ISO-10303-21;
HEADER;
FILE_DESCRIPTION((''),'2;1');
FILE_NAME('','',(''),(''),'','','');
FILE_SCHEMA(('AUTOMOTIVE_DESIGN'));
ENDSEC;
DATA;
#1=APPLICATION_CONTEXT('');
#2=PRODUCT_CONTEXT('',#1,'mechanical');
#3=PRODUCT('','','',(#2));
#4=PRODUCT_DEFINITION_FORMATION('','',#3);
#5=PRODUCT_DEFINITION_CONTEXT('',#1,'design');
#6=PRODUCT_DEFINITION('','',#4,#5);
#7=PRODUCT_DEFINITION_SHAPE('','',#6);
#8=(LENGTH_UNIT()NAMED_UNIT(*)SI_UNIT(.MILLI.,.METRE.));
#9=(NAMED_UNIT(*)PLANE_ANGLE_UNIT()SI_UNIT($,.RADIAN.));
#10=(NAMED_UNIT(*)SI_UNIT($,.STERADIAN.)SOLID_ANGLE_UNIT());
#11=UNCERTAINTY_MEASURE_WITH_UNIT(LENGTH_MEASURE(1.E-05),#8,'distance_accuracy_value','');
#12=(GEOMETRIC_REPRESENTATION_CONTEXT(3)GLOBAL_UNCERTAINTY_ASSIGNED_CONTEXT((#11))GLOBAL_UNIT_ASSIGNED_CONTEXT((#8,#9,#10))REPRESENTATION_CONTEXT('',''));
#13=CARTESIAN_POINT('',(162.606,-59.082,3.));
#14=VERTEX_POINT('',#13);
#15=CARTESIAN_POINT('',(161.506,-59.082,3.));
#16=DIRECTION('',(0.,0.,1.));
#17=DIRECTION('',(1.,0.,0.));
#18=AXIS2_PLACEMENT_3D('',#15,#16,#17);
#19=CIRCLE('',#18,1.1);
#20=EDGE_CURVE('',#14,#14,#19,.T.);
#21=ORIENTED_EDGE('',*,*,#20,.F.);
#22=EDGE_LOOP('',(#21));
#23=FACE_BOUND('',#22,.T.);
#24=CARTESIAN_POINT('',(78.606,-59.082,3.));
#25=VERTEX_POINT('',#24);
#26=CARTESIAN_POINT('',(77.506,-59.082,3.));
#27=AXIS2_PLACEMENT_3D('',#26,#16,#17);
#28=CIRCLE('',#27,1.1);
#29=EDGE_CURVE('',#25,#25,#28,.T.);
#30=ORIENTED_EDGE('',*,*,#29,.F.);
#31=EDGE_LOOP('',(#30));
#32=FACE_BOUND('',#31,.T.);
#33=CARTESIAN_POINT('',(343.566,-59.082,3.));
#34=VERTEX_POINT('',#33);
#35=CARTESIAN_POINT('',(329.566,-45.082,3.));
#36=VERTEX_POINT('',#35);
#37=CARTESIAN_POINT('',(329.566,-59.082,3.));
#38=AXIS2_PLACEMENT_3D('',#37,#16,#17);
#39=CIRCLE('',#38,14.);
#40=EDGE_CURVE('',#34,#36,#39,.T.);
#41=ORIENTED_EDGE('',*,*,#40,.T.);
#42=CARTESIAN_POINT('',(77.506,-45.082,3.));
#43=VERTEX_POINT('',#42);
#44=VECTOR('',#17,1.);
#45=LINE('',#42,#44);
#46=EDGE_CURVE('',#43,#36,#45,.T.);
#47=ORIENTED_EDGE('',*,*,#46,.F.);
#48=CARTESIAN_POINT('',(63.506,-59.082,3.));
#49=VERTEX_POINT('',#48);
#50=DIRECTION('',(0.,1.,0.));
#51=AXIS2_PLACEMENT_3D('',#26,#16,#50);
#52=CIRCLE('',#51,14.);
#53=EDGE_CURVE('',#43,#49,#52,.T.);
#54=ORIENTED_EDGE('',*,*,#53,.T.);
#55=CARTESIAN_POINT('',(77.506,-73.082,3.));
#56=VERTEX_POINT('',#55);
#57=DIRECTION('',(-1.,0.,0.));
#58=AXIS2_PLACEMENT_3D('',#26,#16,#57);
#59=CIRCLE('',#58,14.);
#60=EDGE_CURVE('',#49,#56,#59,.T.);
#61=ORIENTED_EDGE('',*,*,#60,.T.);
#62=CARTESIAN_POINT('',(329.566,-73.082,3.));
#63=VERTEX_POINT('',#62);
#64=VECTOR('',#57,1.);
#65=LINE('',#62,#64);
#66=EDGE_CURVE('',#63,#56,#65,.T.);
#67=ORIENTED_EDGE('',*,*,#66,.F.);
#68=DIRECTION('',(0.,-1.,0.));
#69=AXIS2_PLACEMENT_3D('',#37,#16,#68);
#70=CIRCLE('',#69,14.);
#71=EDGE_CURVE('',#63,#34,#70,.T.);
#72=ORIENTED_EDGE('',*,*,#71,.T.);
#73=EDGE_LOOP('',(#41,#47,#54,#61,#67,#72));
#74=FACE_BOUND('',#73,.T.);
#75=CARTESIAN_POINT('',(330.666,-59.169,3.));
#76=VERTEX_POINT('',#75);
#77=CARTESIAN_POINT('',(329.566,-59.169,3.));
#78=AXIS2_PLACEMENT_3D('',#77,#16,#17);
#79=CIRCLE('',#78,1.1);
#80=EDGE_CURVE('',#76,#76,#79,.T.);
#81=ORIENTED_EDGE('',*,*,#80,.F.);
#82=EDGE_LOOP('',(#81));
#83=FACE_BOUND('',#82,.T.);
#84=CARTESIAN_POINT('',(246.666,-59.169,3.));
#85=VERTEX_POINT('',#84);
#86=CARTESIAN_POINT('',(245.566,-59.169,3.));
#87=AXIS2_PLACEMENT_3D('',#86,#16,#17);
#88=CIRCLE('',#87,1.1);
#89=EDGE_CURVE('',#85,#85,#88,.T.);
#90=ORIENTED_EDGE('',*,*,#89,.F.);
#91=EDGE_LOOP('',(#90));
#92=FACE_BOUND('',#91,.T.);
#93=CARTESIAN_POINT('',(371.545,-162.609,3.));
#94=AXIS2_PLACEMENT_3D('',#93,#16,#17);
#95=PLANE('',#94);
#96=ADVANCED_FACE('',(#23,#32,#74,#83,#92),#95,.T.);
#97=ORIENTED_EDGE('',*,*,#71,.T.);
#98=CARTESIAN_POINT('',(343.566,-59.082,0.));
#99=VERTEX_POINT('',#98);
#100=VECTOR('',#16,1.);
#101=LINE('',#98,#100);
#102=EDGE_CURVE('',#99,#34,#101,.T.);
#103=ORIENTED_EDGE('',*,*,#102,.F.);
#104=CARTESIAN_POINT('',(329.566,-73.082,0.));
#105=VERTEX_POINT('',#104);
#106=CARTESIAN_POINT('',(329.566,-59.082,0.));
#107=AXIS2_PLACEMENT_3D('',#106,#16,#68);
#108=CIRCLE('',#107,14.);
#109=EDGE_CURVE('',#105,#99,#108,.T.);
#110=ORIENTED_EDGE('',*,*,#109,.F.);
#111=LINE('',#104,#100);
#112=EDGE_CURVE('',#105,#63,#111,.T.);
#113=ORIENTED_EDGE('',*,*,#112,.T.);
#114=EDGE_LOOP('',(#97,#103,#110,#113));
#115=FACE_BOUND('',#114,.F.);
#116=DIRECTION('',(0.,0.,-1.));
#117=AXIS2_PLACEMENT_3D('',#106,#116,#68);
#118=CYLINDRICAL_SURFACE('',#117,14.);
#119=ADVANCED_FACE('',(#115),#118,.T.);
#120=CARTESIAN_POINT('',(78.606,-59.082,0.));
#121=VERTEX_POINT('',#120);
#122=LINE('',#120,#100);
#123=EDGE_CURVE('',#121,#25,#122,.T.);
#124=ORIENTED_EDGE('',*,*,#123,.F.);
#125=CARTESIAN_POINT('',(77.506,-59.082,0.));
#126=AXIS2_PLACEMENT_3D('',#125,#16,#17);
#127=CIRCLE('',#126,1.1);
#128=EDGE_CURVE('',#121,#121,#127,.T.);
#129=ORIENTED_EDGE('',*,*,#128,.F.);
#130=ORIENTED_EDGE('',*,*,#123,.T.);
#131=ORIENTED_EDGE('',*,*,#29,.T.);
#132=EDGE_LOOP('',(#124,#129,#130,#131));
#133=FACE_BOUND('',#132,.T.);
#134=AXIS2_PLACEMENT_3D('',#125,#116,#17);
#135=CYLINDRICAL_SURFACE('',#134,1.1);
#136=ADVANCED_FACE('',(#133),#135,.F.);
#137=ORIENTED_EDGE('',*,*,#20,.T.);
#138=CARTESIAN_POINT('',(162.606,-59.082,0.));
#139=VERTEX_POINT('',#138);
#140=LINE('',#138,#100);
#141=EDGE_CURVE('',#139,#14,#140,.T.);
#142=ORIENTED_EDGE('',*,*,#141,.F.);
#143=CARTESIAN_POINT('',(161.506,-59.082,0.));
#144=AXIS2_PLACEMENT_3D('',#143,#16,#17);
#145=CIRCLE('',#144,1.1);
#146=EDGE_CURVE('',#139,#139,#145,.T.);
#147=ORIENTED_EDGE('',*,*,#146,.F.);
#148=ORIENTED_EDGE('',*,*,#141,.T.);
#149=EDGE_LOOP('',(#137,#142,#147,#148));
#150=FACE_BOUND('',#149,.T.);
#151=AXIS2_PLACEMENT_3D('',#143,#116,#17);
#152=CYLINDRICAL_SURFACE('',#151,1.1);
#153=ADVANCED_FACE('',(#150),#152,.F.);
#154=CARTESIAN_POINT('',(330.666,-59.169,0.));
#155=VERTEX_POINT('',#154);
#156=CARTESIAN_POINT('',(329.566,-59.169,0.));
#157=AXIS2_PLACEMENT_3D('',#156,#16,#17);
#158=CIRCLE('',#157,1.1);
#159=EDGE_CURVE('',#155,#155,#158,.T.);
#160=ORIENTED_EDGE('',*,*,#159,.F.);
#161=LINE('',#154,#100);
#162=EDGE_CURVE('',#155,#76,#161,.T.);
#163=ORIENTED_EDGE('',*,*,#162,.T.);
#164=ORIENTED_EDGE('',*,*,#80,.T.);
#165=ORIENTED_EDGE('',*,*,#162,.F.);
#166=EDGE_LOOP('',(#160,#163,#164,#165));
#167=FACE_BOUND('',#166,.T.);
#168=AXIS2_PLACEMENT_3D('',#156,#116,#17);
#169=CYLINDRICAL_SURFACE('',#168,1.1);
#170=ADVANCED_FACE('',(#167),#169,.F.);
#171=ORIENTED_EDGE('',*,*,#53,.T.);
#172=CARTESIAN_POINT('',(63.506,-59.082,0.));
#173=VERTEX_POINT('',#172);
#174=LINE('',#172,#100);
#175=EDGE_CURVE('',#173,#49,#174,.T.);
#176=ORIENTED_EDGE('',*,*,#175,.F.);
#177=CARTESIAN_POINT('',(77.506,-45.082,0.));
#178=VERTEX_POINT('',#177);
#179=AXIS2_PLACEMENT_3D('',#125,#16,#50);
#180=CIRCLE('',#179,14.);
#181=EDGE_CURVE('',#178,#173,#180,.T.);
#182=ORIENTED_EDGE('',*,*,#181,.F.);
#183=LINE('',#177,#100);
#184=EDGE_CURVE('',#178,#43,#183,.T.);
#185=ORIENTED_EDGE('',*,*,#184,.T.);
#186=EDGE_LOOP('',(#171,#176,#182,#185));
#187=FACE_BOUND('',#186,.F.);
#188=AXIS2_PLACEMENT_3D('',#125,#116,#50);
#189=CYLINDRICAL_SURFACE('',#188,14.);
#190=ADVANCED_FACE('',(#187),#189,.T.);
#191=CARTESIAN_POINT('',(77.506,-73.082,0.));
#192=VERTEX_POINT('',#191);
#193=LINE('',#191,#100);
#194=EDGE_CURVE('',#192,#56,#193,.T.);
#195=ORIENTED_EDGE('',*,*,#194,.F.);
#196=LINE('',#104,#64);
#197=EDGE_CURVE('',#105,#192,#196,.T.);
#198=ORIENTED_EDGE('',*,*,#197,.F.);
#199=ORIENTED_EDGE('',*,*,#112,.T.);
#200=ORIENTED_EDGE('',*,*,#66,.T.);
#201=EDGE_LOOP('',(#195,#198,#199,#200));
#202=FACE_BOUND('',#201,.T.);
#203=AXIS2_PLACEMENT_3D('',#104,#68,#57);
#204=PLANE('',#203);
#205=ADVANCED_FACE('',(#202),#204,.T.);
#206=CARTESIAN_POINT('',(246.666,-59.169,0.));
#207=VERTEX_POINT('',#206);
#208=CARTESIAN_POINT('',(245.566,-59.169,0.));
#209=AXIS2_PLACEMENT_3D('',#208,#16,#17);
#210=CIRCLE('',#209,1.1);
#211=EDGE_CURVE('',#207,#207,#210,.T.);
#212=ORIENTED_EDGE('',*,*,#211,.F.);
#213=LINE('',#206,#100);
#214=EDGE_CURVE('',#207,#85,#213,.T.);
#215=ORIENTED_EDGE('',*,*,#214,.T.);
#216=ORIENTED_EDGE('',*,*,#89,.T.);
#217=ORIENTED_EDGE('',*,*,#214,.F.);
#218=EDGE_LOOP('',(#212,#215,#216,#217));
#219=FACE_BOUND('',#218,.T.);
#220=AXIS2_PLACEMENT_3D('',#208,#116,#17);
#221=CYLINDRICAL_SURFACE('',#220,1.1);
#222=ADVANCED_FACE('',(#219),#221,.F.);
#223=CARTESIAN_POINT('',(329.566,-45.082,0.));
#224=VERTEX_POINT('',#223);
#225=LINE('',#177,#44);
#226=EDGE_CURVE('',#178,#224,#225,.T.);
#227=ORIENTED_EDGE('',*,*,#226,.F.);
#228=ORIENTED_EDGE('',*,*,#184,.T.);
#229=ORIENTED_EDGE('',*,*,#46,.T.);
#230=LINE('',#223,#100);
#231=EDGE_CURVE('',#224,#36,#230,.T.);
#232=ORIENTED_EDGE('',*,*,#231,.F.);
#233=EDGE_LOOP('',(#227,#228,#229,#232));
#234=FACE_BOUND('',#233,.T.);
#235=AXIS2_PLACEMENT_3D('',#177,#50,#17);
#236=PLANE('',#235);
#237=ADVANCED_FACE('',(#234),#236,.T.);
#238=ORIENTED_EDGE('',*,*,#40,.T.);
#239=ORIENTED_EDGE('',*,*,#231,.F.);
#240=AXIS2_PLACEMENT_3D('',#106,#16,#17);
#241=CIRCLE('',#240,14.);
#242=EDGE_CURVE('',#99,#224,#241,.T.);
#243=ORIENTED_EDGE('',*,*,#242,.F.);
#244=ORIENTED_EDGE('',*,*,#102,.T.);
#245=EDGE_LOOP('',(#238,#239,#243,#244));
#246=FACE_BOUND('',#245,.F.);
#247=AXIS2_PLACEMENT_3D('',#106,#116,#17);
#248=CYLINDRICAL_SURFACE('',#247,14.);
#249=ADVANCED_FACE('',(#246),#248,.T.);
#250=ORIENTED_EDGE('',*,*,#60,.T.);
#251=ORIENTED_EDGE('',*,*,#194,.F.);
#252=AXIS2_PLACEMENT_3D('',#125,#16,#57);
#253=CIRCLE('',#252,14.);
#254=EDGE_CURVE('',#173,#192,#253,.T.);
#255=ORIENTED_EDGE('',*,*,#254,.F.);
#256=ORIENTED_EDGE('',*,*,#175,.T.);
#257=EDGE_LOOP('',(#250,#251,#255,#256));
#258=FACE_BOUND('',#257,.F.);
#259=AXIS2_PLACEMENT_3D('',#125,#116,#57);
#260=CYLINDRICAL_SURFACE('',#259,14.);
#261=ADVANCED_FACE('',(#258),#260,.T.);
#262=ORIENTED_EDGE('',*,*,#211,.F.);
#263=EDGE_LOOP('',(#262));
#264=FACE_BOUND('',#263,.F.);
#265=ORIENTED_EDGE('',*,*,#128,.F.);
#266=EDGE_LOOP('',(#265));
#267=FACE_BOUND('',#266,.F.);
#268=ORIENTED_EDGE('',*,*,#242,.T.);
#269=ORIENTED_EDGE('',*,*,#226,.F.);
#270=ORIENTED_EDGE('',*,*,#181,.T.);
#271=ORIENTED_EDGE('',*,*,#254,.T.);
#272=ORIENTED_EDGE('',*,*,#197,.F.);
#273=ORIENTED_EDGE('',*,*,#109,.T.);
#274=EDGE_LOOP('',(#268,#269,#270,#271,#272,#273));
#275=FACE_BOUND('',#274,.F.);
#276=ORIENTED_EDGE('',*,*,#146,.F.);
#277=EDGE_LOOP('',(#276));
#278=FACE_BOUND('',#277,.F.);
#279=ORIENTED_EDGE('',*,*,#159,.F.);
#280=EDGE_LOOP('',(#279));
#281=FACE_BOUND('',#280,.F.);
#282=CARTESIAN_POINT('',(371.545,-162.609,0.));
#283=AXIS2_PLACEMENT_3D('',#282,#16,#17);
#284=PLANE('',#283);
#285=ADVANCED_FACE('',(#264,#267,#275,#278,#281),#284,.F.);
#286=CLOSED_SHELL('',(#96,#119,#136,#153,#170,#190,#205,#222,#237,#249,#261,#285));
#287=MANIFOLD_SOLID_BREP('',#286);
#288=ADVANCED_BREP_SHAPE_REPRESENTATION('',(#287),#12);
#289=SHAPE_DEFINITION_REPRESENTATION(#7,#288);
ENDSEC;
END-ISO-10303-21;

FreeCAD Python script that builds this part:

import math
import FreeCAD as App
import Part
import Sketcher
from FreeCAD import Vector
Q = App.Units.Quantity

doc = App.newDocument("Part")
body = doc.addObject("PartDesign::Body", "Body")

# Sketch on XY plane
sketch1 = doc.addObject("Sketcher::SketchObject", "Sketch")
body.addObject(sketch1)
sketch1.AttachmentSupport = (doc.XY_Plane, [""])
sketch1.MapMode = "FlatFace"
sketch1.addGeometry([
    Part.LineSegment(Vector(329.566, -45.082, 0), Vector(77.506, -45.082, 0)),  # 0
    Part.ArcOfCircle(Part.Circle(Vector(77.506, -59.082, 0), Vector(0, 0, 1), 14), math.radians(90), math.radians(270)),  # 1
    Part.LineSegment(Vector(77.506, -73.082, 0), Vector(329.566, -73.082, 0)),  # 2
    Part.ArcOfCircle(Part.Circle(Vector(329.566, -59.082, 0), Vector(0, 0, 1), 14), math.radians(-90), math.radians(90)),  # 3
    Part.Circle(Vector(245.566, -59.169, 0), Vector(0, 0, 1), 1.1),  # 4
    Part.Circle(Vector(329.566, -59.169, 0), Vector(0, 0, 1), 1.1),  # 5
    Part.Circle(Vector(77.506, -59.082, 0), Vector(0, 0, 1), 1.1),  # 6
    Part.Circle(Vector(161.506, -59.082, 0), Vector(0, 0, 1), 1.1),  # 7
], False)
sketch1.addConstraint([
    Sketcher.Constraint("Tangent", 0, 2, 1, 1),
    Sketcher.Constraint("Tangent", 1, 2, 2, 1),
    Sketcher.Constraint("Tangent", 2, 2, 3, 1),
    Sketcher.Constraint("Tangent", 3, 2, 0, 1),
    Sketcher.Constraint("Horizontal", 0),
    Sketcher.Constraint("Horizontal", 2),
    Sketcher.Constraint("Coincident", 6, 3, 1, 3),
    Sketcher.Constraint("Equal", 4, 5),
    Sketcher.Constraint("Equal", 5, 6),
    Sketcher.Constraint("Equal", 6, 7),
    Sketcher.Constraint("Horizontal", 4, 3, 5, 3),
    Sketcher.Constraint("Horizontal", 6, 3, 7, 3),
    Sketcher.Constraint("Vertical", 3, 3, 5, 3),
    Sketcher.Constraint("Radius", 1, Q("14 mm")),
    Sketcher.Constraint("Diameter", 4, Q("2.2 mm")),
    Sketcher.Constraint("DistanceX", 4, 3, 3, 3, Q("84 mm")),
    Sketcher.Constraint("DistanceX", 1, 3, 7, 3, Q("84 mm")),
    Sketcher.Constraint("DistanceX", 0, 2, 0, 1, Q("252.06 mm")),
    Sketcher.Constraint("DistanceX", -1, 1, 1, 3, Q("77.506 mm")),
    Sketcher.Constraint("DistanceY", 1, 3, -1, 1, Q("59.082 mm")),
    Sketcher.Constraint("DistanceY", 4, 3, -1, 1, Q("59.169 mm")),
])
pad1 = doc.addObject("PartDesign::Pad", "Pad")
body.addObject(pad1)
pad1.Profile = sketch1
pad1.Length = 3

doc.recompute()
